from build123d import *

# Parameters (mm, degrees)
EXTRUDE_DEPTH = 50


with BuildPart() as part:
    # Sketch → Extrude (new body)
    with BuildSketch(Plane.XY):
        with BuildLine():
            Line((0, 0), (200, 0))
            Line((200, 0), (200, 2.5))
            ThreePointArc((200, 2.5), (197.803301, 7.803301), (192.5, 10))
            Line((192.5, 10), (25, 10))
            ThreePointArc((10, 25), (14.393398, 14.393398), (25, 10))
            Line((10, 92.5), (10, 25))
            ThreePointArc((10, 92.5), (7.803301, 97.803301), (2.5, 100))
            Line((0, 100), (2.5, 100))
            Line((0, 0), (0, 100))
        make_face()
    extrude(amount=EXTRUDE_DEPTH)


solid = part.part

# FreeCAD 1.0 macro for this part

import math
import FreeCAD as App
import Part
import Sketcher

doc = App.newDocument("Part")
params = doc.addObject("Spreadsheet::Sheet", "Params")
for row, (alias, value) in enumerate([
    ("sketch1_radius", "14.999999 mm"),
    ("sketch1_radius2", "7.5 mm"),
    ("sketch1_width", "200 mm"),
    ("sketch1_height", "100 mm"),
    ("sketch1_width2", "167.5 mm"),
    ("pad1_length", "50 mm"),
], start=1):
    params.set(f"A{row}", alias)
    params.set(f"B{row}", "=" + value)
    params.setAlias(f"B{row}", alias)

body = doc.addObject("PartDesign::Body", "Body")

# Sketch on XY plane
sketch1 = body.newObject("Sketcher::SketchObject", "Sketch")
sketch1.AttachmentSupport = (doc.getObject("XY_Plane"), [""])
sketch1.MapMode = "FlatFace"
sketch1.addGeometry([
    Part.LineSegment(App.Vector(0, 0, 0), App.Vector(200, 0, 0)),  # 0
    Part.LineSegment(App.Vector(200, 0, 0), App.Vector(200, 2.5, 0)),  # 1
    Part.ArcOfCircle(Part.Circle(App.Vector(192.5, 2.5, 0), App.Vector(0, 0, 1), 7.5), math.radians(-0.000004), math.radians(90.000004)),  # 2
    Part.LineSegment(App.Vector(192.5, 10, 0), App.Vector(25, 10, 0)),  # 3
    Part.ArcOfCircle(Part.Circle(App.Vector(24.999999, 24.999999, 0), App.Vector(0, 0, 1), 14.999999), math.radians(179.999996), math.radians(270.000004)),  # 4
    Part.LineSegment(App.Vector(10, 25, 0), App.Vector(10, 92.5, 0)),  # 5
    Part.ArcOfCircle(Part.Circle(App.Vector(2.5, 92.5, 0), App.Vector(0, 0, 1), 7.5), math.radians(-0.000004), math.radians(90.000004)),  # 6
    Part.LineSegment(App.Vector(2.5, 100, 0), App.Vector(0, 100, 0)),  # 7
    Part.LineSegment(App.Vector(0, 100, 0), App.Vector(0, 0, 0)),  # 8
], False)
sketch1.addConstraint([
    Sketcher.Constraint("Coincident", 0, 2, 1, 1),
    Sketcher.Constraint("Tangent", 1, 2, 2, 1),
    Sketcher.Constraint("Tangent", 2, 2, 3, 1),
    Sketcher.Constraint("Tangent", 3, 2, 4, 2),
    Sketcher.Constraint("Tangent", 4, 1, 5, 1),
    Sketcher.Constraint("Tangent", 5, 2, 6, 1),
    Sketcher.Constraint("Tangent", 6, 2, 7, 1),
    Sketcher.Constraint("Coincident", 7, 2, 8, 1),
    Sketcher.Constraint("Coincident", 8, 2, 0, 1),
    Sketcher.Constraint("Horizontal", 0),
    Sketcher.Constraint("Vertical", 1),
    Sketcher.Constraint("Horizontal", 3),
    Sketcher.Constraint("Vertical", 5),
    Sketcher.Constraint("Horizontal", 7),
    Sketcher.Constraint("Vertical", 8),
    Sketcher.Constraint("Coincident", 8, 2, -1, 1),
    Sketcher.Constraint("Equal", 2, 6),
    Sketcher.Constraint("Equal", 7, 1),
    Sketcher.Constraint("Radius", 4, 14.999999),
    Sketcher.Constraint("Radius", 2, 7.5),
    Sketcher.Constraint("DistanceX", 0, 1, 0, 2, 200.0),
    Sketcher.Constraint("DistanceY", 8, 2, 8, 1, 100.0),
    Sketcher.Constraint("DistanceX", 3, 2, 3, 1, 167.5),
])
sketch1.setExpression("Constraints[18]", "Params.sketch1_radius")
sketch1.setExpression("Constraints[19]", "Params.sketch1_radius2")
sketch1.setExpression("Constraints[20]", "Params.sketch1_width")
sketch1.setExpression("Constraints[21]", "Params.sketch1_height")
sketch1.setExpression("Constraints[22]", "Params.sketch1_width2")
pad1 = body.newObject("PartDesign::Pad", "Pad")
pad1.Profile = sketch1
pad1.setExpression("Length", "Params.pad1_length")

doc.recompute()
